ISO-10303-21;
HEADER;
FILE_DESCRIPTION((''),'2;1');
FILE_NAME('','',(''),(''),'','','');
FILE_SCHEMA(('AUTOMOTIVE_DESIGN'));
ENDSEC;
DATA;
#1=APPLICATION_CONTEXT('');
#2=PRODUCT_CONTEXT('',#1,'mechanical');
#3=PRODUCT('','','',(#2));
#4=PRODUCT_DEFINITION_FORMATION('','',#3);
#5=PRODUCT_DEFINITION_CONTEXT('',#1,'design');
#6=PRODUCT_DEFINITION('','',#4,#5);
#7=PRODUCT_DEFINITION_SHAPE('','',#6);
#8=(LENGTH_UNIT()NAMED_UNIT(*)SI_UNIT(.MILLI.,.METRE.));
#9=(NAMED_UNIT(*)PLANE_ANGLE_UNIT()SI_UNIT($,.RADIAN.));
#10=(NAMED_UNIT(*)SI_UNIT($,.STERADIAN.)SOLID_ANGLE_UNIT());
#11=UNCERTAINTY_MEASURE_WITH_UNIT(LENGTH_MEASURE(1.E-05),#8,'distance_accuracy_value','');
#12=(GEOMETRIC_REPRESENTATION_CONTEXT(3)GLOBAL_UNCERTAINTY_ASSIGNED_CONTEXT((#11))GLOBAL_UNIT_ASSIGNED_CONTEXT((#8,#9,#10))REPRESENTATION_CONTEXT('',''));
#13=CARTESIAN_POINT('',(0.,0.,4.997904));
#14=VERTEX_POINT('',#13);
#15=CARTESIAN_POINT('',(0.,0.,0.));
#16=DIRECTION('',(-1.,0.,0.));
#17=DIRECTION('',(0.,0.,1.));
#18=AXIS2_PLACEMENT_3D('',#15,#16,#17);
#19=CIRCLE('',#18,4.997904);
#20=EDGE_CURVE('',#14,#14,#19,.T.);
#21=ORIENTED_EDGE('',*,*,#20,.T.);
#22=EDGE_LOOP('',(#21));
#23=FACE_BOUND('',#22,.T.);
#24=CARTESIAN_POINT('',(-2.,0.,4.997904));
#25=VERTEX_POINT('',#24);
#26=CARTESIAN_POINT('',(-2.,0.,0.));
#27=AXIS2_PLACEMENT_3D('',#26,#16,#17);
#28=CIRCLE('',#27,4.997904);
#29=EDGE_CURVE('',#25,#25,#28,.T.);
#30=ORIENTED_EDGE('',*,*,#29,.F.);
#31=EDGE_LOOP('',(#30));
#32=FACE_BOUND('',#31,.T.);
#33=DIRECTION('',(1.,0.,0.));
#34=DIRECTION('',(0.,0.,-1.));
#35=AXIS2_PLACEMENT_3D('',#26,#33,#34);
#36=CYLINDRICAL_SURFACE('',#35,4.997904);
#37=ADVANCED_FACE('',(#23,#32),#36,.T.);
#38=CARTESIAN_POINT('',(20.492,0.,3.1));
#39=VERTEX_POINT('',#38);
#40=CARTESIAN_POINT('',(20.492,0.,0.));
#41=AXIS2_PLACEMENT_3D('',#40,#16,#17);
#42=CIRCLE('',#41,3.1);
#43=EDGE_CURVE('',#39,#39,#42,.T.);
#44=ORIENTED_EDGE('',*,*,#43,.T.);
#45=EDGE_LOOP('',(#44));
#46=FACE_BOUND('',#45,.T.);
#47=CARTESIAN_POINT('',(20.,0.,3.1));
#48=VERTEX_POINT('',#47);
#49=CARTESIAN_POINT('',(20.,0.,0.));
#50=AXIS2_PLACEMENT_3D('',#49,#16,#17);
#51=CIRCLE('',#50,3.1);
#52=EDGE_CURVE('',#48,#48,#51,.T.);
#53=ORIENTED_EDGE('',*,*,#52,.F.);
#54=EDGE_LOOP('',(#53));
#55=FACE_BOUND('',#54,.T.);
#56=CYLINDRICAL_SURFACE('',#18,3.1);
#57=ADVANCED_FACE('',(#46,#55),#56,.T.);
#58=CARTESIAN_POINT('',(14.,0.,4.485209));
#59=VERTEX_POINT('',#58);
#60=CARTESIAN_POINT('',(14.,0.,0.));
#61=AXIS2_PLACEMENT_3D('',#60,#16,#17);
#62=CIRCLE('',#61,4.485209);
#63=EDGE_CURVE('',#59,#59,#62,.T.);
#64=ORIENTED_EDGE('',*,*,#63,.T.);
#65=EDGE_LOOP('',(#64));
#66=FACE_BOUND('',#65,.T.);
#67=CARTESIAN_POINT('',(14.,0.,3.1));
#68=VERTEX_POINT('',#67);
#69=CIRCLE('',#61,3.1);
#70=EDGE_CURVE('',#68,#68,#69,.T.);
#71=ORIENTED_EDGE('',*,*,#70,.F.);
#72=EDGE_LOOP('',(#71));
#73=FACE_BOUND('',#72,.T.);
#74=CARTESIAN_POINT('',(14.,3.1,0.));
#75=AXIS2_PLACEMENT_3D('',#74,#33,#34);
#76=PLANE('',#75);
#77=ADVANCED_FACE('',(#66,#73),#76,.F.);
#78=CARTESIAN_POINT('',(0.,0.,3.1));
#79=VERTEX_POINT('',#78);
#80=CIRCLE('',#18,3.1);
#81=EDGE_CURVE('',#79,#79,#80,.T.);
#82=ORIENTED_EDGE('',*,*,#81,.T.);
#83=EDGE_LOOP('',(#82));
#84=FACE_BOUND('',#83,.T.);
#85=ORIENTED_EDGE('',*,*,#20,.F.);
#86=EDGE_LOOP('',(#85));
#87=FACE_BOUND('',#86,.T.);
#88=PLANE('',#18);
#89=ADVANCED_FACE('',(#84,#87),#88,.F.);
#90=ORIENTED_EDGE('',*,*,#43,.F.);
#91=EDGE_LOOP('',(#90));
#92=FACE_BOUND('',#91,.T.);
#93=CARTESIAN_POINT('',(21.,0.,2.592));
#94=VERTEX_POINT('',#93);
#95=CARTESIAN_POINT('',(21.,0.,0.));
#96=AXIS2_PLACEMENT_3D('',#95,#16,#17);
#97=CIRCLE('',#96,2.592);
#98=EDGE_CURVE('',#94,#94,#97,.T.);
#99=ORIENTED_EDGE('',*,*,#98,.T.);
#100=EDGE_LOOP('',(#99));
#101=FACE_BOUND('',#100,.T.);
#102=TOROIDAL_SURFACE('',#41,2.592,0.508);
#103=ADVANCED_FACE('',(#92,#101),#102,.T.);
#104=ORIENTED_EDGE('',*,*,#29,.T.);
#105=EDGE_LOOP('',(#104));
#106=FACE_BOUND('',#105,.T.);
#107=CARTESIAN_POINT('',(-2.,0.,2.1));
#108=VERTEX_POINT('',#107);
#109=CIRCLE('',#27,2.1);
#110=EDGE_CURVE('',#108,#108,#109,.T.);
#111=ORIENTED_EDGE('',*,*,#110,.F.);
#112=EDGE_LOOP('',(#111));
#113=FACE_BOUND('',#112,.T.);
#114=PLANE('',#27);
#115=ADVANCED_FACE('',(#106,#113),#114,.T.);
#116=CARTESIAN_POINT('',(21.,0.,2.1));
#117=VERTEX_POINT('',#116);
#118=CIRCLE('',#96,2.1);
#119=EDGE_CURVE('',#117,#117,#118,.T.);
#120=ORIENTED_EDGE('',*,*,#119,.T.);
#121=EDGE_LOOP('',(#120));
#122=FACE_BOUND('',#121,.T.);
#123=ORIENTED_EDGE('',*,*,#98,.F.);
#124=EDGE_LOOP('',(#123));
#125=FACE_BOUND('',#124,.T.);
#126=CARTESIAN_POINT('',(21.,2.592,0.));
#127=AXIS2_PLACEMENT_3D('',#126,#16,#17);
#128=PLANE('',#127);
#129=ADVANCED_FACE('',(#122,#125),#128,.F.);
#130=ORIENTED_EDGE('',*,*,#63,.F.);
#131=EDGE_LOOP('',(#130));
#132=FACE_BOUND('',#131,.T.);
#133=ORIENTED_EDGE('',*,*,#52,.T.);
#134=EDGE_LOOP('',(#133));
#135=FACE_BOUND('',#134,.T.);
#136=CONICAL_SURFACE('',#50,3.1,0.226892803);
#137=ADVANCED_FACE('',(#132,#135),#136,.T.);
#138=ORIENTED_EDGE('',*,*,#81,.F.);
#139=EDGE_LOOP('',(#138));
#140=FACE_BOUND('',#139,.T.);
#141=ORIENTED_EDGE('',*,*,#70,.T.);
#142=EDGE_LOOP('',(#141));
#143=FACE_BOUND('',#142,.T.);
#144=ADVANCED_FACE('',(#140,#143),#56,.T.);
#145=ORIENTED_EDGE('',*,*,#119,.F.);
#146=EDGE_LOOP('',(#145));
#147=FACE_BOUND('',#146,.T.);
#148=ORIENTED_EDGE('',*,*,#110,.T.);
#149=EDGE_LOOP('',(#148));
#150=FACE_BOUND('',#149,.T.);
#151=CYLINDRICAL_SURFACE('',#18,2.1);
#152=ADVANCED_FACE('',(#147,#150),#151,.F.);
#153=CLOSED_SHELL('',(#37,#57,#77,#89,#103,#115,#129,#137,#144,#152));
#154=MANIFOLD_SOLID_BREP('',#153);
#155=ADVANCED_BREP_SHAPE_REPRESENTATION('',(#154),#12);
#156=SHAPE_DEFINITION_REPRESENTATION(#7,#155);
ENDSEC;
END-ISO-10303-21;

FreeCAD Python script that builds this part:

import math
import FreeCAD as App
import Part
import Sketcher
from FreeCAD import Vector
Q = App.Units.Quantity

doc = App.newDocument("Part")
params = doc.addObject("Spreadsheet::Sheet", "Params")
for row, (alias, value) in enumerate([
    ("sketch1_width", "21 mm"),
    ("sketch1_width2", "14 mm"),
    ("sketch1_height", "1 mm"),
    ("revolution_angle", "360 deg"),
    ("sketch2_diameter", "4.2 mm"),
    ("pad1_length", "2 mm"),
], start=1):
    params.set(f"A{row}", alias)
    params.set(f"B{row}", "=" + value)
    params.setAlias(f"B{row}", alias)

body = doc.addObject("PartDesign::Body", "Body")

# Sketch on XY plane
sketch1 = body.newObject("Sketcher::SketchObject", "Sketch")
sketch1.AttachmentSupport = (doc.getObject("XY_Plane"), [""])
sketch1.MapMode = "FlatFace"
sketch1.addGeometry([
    Part.LineSegment(Vector(0, 2.1, 0), Vector(21, 2.1, 0)),  # 0
    Part.LineSegment(Vector(21, 2.1, 0), Vector(21, 2.59, 0)),  # 1
    Part.ArcOfCircle(Part.Circle(Vector(20.49, 2.59, 0), Vector(0, 0, 1), 0.51), math.radians(0), math.radians(90)),  # 2
    Part.LineSegment(Vector(20.49, 3.1, 0), Vector(20, 3.1, 0)),  # 3
    Part.LineSegment(Vector(20, 3.1, 0), Vector(14, 4.49, 0)),  # 4
    Part.LineSegment(Vector(14, 4.49, 0), Vector(14, 3.1, 0)),  # 5
    Part.LineSegment(Vector(14, 3.1, 0), Vector(0, 3.1, 0)),  # 6
    Part.LineSegment(Vector(0, 3.1, 0), Vector(0, 2.1, 0)),  # 7
], False)
sketch1.addConstraint([
    Sketcher.Constraint("Coincident", 0, 2, 1, 1),
    Sketcher.Constraint("Tangent", 1, 2, 2, 1),
    Sketcher.Constraint("Tangent", 2, 2, 3, 1),
    Sketcher.Constraint("Coincident", 3, 2, 4, 1),
    Sketcher.Constraint("Coincident", 4, 2, 5, 1),
    Sketcher.Constraint("Coincident", 5, 2, 6, 1),
    Sketcher.Constraint("Coincident", 6, 2, 7, 1),
    Sketcher.Constraint("Coincident", 7, 2, 0, 1),
    Sketcher.Constraint("Horizontal", 0),
    Sketcher.Constraint("Vertical", 1),
    Sketcher.Constraint("Horizontal", 3),
    Sketcher.Constraint("Vertical", 5),
    Sketcher.Constraint("Horizontal", 6),
    Sketcher.Constraint("Vertical", 7),
    Sketcher.Constraint("PointOnObject", 6, 2, -2),
    Sketcher.Constraint("Horizontal", 3, 2, 5, 2),
    Sketcher.Constraint("Equal", 3, 1),
    Sketcher.Constraint("DistanceX", 0, 1, 0, 2, 21.0),
    Sketcher.Constraint("DistanceX", 6, 2, 6, 1, 14.0),
    Sketcher.Constraint("DistanceY", 7, 2, 7, 1, 1.0),
    Sketcher.Constraint("Angle", 4, Q("167 deg")),
    Sketcher.Constraint("Radius", 2, 0.508),
    Sketcher.Constraint("DistanceY", -1, 1, 0, 2, 2.1),
])
sketch1.setExpression("Constraints[17]", "Params.sketch1_width")
sketch1.setExpression("Constraints[18]", "Params.sketch1_width2")
sketch1.setExpression("Constraints[19]", "Params.sketch1_height")
revolution = body.newObject("PartDesign::Revolution", "Revolution")
revolution.Profile = sketch1
revolution.ReferenceAxis = (sketch1, ["H_Axis"])
revolution.setExpression("Angle", "Params.revolution_angle")

# Sketch on YZ plane
sketch2 = body.newObject("Sketcher::SketchObject", "Sketch001")
sketch2.AttachmentSupport = (doc.getObject("YZ_Plane"), [""])
sketch2.MapMode = "FlatFace"
sketch2.addGeometry([
    Part.Circle(Vector(0, 0, 0), Vector(0, 0, 1), 5),
    Part.Circle(Vector(0, 0, 0), Vector(0, 0, 1), 2.1),
], False)
sketch2.addConstraint([
    Sketcher.Constraint("Coincident", 0, 3, -1, 1),
    Sketcher.Constraint("Coincident", 1, 3, -1, 1),
    Sketcher.Constraint("Diameter", 1, 4.2),
    Sketcher.Constraint("Diameter", 0, 9.995807),
])
sketch2.setExpression("Constraints[2]", "Params.sketch2_diameter")
pad1 = body.newObject("PartDesign::Pad", "Pad")
pad1.Profile = sketch2
pad1.setExpression("Length", "Params.pad1_length")
pad1.Reversed = True

doc.recompute()
